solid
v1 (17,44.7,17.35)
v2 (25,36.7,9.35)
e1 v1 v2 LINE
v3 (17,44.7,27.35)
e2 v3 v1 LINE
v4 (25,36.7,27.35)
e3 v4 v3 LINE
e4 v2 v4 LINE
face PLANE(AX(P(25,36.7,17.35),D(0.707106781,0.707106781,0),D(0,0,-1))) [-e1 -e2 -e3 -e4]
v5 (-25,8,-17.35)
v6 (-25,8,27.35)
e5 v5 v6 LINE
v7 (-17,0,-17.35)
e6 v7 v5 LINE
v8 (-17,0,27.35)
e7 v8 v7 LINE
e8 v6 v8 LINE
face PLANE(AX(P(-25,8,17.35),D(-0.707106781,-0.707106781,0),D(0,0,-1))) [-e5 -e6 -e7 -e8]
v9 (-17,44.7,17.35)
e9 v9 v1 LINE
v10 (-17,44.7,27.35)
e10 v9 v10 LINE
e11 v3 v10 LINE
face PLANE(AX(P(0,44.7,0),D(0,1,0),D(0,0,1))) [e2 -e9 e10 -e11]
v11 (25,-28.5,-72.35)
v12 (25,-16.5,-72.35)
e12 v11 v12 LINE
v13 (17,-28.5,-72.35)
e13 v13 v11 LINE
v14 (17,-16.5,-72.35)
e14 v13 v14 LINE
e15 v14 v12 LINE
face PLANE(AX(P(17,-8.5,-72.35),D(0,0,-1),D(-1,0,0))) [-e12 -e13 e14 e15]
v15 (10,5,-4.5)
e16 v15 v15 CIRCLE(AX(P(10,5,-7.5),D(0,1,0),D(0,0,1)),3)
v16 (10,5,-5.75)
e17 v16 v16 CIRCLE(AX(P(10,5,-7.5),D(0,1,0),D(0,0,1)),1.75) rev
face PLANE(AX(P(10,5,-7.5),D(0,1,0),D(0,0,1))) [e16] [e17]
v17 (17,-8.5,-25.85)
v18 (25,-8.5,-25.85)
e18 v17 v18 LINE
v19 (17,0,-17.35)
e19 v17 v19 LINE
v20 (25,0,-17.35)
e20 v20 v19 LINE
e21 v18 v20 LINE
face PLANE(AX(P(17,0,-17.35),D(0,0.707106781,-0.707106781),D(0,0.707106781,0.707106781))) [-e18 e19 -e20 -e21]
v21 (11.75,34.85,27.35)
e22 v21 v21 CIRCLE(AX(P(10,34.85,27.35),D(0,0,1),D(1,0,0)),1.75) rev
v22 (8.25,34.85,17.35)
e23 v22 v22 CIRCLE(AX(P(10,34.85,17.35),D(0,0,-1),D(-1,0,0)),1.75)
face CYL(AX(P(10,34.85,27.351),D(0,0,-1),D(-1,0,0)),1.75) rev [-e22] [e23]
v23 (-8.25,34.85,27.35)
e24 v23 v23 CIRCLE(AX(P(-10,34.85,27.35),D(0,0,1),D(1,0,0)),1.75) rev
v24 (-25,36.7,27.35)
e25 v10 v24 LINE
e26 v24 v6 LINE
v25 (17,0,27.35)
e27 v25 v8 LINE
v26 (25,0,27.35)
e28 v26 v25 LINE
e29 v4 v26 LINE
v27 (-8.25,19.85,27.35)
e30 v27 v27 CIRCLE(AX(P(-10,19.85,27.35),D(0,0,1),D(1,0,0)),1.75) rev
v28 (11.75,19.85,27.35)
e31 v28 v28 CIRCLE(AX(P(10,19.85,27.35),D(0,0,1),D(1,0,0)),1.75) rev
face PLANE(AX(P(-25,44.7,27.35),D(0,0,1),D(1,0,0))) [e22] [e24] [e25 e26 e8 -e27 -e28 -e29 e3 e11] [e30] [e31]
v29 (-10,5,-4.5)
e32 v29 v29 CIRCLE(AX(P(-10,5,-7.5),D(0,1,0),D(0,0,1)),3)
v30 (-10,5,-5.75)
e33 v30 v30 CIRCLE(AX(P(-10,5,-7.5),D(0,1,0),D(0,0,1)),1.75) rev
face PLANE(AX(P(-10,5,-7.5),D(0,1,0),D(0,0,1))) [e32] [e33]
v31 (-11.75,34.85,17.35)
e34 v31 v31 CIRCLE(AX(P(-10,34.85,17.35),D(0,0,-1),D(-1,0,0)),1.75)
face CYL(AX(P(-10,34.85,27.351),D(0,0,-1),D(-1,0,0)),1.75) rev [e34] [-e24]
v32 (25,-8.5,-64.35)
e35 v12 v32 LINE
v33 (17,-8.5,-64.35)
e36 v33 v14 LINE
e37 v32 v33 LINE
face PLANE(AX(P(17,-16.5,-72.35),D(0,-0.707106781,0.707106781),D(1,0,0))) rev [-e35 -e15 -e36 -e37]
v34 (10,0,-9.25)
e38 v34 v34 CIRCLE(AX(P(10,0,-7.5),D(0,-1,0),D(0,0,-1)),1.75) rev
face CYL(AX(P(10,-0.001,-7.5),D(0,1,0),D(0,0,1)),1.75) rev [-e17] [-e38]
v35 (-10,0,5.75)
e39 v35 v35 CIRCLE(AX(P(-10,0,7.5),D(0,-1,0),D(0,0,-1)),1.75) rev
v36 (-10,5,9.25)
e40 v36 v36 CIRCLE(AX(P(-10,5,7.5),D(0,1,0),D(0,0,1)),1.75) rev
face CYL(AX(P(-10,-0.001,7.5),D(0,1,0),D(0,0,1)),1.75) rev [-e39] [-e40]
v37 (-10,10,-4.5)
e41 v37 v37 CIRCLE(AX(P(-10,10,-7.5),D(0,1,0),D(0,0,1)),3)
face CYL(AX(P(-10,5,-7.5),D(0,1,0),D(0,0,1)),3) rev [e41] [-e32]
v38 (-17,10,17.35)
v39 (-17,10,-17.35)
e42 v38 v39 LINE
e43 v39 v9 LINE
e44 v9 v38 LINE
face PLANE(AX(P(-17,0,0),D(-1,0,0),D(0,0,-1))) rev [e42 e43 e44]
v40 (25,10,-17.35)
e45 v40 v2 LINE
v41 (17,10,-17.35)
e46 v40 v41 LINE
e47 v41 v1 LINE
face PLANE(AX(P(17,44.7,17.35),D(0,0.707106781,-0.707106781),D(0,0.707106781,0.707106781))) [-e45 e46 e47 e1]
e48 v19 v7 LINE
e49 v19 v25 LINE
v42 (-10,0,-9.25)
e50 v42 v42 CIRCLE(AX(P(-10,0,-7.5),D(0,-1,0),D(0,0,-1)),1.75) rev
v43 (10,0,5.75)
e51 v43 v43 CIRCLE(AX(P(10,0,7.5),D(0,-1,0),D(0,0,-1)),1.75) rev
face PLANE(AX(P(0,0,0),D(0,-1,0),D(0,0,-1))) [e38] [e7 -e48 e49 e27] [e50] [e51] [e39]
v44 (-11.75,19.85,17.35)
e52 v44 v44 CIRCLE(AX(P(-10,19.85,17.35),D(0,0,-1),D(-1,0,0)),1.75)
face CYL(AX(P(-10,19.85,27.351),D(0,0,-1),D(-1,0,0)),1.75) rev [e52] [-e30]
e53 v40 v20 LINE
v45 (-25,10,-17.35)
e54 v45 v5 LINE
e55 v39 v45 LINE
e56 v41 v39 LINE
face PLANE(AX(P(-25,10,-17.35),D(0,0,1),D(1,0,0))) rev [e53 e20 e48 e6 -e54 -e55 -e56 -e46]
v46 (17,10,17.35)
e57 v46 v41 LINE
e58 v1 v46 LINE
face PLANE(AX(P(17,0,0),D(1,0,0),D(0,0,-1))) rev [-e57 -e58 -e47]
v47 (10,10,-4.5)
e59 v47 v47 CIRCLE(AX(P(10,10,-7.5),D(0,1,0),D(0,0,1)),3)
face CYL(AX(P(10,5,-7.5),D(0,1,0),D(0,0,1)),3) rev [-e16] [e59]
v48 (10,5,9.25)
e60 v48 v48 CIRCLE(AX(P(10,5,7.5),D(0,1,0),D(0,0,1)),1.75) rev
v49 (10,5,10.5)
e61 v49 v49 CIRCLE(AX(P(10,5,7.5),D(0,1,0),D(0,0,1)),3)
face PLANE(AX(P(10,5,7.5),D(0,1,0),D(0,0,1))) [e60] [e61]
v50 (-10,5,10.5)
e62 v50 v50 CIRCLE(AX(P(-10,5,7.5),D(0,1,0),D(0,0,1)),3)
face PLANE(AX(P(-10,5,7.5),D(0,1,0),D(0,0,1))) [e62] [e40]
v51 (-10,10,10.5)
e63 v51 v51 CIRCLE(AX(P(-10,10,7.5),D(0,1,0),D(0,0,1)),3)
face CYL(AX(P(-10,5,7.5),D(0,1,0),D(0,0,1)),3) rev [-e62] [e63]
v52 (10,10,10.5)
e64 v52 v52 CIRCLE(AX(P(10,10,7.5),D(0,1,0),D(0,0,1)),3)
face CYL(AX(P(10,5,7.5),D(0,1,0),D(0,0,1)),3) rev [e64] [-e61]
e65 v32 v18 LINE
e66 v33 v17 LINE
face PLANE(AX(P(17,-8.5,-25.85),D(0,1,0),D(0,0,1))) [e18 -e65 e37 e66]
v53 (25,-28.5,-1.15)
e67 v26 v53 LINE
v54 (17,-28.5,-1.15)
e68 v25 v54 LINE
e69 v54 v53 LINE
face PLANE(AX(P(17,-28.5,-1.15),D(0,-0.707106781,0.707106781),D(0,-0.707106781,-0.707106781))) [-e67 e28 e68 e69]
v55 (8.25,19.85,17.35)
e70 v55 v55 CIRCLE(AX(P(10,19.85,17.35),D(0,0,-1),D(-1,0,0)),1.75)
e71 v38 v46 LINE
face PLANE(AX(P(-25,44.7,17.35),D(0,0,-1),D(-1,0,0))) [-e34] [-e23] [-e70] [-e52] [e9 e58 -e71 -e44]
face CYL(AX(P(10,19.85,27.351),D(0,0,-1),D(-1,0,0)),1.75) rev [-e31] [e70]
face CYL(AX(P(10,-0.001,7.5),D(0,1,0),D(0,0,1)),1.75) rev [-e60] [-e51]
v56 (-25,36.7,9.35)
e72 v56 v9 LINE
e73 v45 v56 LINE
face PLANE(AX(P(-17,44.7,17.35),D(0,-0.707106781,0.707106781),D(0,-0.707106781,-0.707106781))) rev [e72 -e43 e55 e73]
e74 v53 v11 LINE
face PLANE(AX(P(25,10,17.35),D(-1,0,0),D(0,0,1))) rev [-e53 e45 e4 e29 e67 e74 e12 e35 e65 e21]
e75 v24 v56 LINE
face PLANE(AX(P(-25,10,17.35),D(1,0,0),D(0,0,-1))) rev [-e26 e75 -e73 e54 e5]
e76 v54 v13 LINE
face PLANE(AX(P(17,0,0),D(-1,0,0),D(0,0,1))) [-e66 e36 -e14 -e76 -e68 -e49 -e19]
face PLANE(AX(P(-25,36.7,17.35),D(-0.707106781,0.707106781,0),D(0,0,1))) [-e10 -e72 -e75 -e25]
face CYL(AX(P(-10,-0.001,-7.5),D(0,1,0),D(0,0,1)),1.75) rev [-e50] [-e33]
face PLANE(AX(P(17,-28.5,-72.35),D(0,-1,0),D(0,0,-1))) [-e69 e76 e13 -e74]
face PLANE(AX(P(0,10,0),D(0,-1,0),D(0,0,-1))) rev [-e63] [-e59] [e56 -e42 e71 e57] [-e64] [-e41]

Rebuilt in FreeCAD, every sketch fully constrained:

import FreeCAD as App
import Part
import Sketcher
Q = App.Units.Quantity


def edges_at(feature, points):
    """Names of the edges that pass closest to the given points."""
    edges = feature.Shape.Edges
    near = lambda p: min(range(len(edges)), key=lambda i: edges[i].distToShape(Part.Vertex(*p))[0])
    return sorted({f"Edge{near(p) + 1}" for p in points})


def add_polygon(sketch, points):
    """Adds a closed chain of lines whose ends are joined by coincident constraints."""
    first, n = sketch.GeometryCount, len(points)
    for a, b in zip(points, points[1:] + points[:1]):
        sketch.addGeometry(Part.LineSegment(App.Vector(*a, 0), App.Vector(*b, 0)), False)
    for i in range(n):
        sketch.addConstraint(Sketcher.Constraint("Coincident", first + i, 2, first + (i + 1) % n, 1))

doc = App.newDocument("Part")
params = doc.addObject("Spreadsheet::Sheet", "Params")
for row, (alias, value) in enumerate([
    ("sketch1_width", "50 mm"),
    ("sketch1_height", "34.7 mm"),
    ("pad1_length", "10 mm"),
    ("sketch2_diameter", "3.5 mm"),
    ("sketch3_diameter", "3.5 mm"),
    ("sketch4_diameter", "3.5 mm"),
    ("sketch5_diameter", "3.5 mm"),
    ("sketch6_diameter", "6 mm"),
    ("pocket5_length", "5 mm"),
    ("sketch7_width", "50 mm"),
    ("sketch7_height", "10 mm"),
    ("pad2_length", "44.7 mm"),
    ("sketch8_width", "20 mm"),
    ("sketch8_height", "44.7 mm"),
    ("sketch8_height2", "71.2 mm"),
    ("pad3_length", "8 mm"),
    ("sketch9_width", "34.7 mm"),
    ("pad4_length", "8 mm"),
    ("chamfer_size", "8 mm"),
    ("sketch10_diameter", "3.5 mm"),
    ("sketch11_diameter", "3.5 mm"),
    ("sketch12_diameter", "3.5 mm"),
    ("sketch13_diameter", "3.5 mm"),
    ("chamfer2_size", "8 mm"),
], start=1):
    params.set(f"A{row}", alias)
    params.set(f"B{row}", "=" + value)
    params.setAlias(f"B{row}", alias)

body = doc.addObject("PartDesign::Body", "Body")

# Sketch on XZ plane
sketch1 = doc.addObject("Sketcher::SketchObject", "Sketch")
body.addObject(sketch1)
sketch1.AttachmentSupport = (doc.XZ_Plane, [""])
sketch1.MapMode = "FlatFace"
add_polygon(sketch1, [(-25, -17), (-25, 17), (25, 17), (25, -17)])  # lines 0-3
sketch1.addConstraint([
    Sketcher.Constraint("Vertical", 0),
    Sketcher.Constraint("Horizontal", 1),
    Sketcher.Constraint("Vertical", 2),
    Sketcher.Constraint("Horizontal", 3),
    Sketcher.Constraint("Symmetric", 0, 2, 2, 2, -1, 1),
    Sketcher.Constraint("DistanceX", 1, 1, 1, 2, 50.0),
    Sketcher.Constraint("DistanceY", 0, 1, 0, 2, 34.7),
])
sketch1.setExpression("Constraints[9]", "Params.sketch1_width")
sketch1.setExpression("Constraints[10]", "Params.sketch1_height")
pad1 = doc.addObject("PartDesign::Pad", "Pad")
body.addObject(pad1)
pad1.Profile = sketch1
pad1.setExpression("Length", "Params.pad1_length")
pad1.Reversed = True

# Sketch on XZ plane
sketch2 = doc.addObject("Sketcher::SketchObject", "Sketch001")
body.addObject(sketch2)
sketch2.AttachmentSupport = (doc.XZ_Plane, [""])
sketch2.MapMode = "FlatFace"
sketch2.AttachmentOffset = App.Placement(App.Vector(0, 0, -10), App.Rotation())
sketch2.addGeometry(Part.Circle(App.Vector(-10, -7.5, 0), App.Vector(0, 0, 1), 1.8), False)
sketch2.addConstraint([
    Sketcher.Constraint("Diameter", 0, 3.5),
    Sketcher.Constraint("DistanceX", 0, 3, -1, 1, 10.0),
    Sketcher.Constraint("DistanceY", 0, 3, -1, 1, 7.5),
])
sketch2.setExpression("Constraints[0]", "Params.sketch2_diameter")
pocket1 = doc.addObject("PartDesign::Pocket", "Pocket")
body.addObject(pocket1)
pocket1.Profile = sketch2
pocket1.Type = "UpToFirst"
pocket1.Reversed = True

# Sketch on XZ plane
sketch3 = doc.addObject("Sketcher::SketchObject", "Sketch002")
body.addObject(sketch3)
sketch3.AttachmentSupport = (doc.XZ_Plane, [""])
sketch3.MapMode = "FlatFace"
sketch3.AttachmentOffset = App.Placement(App.Vector(0, 0, -10), App.Rotation())
sketch3.addGeometry(Part.Circle(App.Vector(10, -7.5, 0), App.Vector(0, 0, 1), 1.8), False)
sketch3.addConstraint([
    Sketcher.Constraint("Diameter", 0, 3.5),
    Sketcher.Constraint("DistanceX", -1, 1, 0, 3, 10.0),
    Sketcher.Constraint("DistanceY", 0, 3, -1, 1, 7.5),
])
sketch3.setExpression("Constraints[0]", "Params.sketch3_diameter")
pocket2 = doc.addObject("PartDesign::Pocket", "Pocket001")
body.addObject(pocket2)
pocket2.Profile = sketch3
pocket2.Type = "UpToFirst"
pocket2.Reversed = True

# Sketch on XZ plane
sketch4 = doc.addObject("Sketcher::SketchObject", "Sketch003")
body.addObject(sketch4)
sketch4.AttachmentSupport = (doc.XZ_Plane, [""])
sketch4.MapMode = "FlatFace"
sketch4.AttachmentOffset = App.Placement(App.Vector(0, 0, -10), App.Rotation())
sketch4.addGeometry(Part.Circle(App.Vector(10, 7.5, 0), App.Vector(0, 0, 1), 1.8), False)
sketch4.addConstraint([
    Sketcher.Constraint("Diameter", 0, 3.5),
    Sketcher.Constraint("DistanceX", -1, 1, 0, 3, 10.0),
    Sketcher.Constraint("DistanceY", -1, 1, 0, 3, 7.5),
])
sketch4.setExpression("Constraints[0]", "Params.sketch4_diameter")
pocket3 = doc.addObject("PartDesign::Pocket", "Pocket002")
body.addObject(pocket3)
pocket3.Profile = sketch4
pocket3.Type = "UpToFirst"
pocket3.Reversed = True

# Sketch on XZ plane
sketch5 = doc.addObject("Sketcher::SketchObject", "Sketch004")
body.addObject(sketch5)
sketch5.AttachmentSupport = (doc.XZ_Plane, [""])
sketch5.MapMode = "FlatFace"
sketch5.AttachmentOffset = App.Placement(App.Vector(0, 0, -10), App.Rotation())
sketch5.addGeometry(Part.Circle(App.Vector(-10, 7.5, 0), App.Vector(0, 0, 1), 1.8), False)
sketch5.addConstraint([
    Sketcher.Constraint("Diameter", 0, 3.5),
    Sketcher.Constraint("DistanceX", 0, 3, -1, 1, 10.0),
    Sketcher.Constraint("DistanceY", -1, 1, 0, 3, 7.5),
])
sketch5.setExpression("Constraints[0]", "Params.sketch5_diameter")
pocket4 = doc.addObject("PartDesign::Pocket", "Pocket003")
body.addObject(pocket4)
pocket4.Profile = sketch5
pocket4.Type = "UpToFirst"
pocket4.Reversed = True

# Sketch on XZ plane
sketch6 = doc.addObject("Sketcher::SketchObject", "Sketch005")
body.addObject(sketch6)
sketch6.AttachmentSupport = (doc.XZ_Plane, [""])
sketch6.MapMode = "FlatFace"
sketch6.AttachmentOffset = App.Placement(App.Vector(0, 0, -10), App.Rotation())
sketch6.addGeometry([
    Part.Circle(App.Vector(-10, -7.5, 0), App.Vector(0, 0, 1), 3),
    Part.Circle(App.Vector(10, -7.5, 0), App.Vector(0, 0, 1), 3),
    Part.Circle(App.Vector(10, 7.5, 0), App.Vector(0, 0, 1), 3),
    Part.Circle(App.Vector(-10, 7.5, 0), App.Vector(0, 0, 1), 3),
], False)
sketch6.addConstraint([
    Sketcher.Constraint("Equal", 0, 1),
    Sketcher.Constraint("Equal", 1, 2),
    Sketcher.Constraint("Equal", 2, 3),
    Sketcher.Constraint("Symmetric", 0, 3, 2, 3, -1, 1),
    Sketcher.Constraint("Symmetric", 1, 3, 3, 3, -1, 1),
    Sketcher.Constraint("Symmetric", 0, 3, 1, 3, -2),
    Sketcher.Constraint("Diameter", 0, 6.0),
    Sketcher.Constraint("DistanceX", 0, 3, -1, 1, 10.0),
    Sketcher.Constraint("DistanceY", 1, 3, 2, 3, 15.0),
])
sketch6.setExpression("Constraints[6]", "Params.sketch6_diameter")
pocket5 = doc.addObject("PartDesign::Pocket", "Pocket004")
body.addObject(pocket5)
pocket5.Profile = sketch6
pocket5.setExpression("Length", "Params.pocket5_length")
pocket5.Reversed = True

# Sketch on XZ plane
sketch7 = doc.addObject("Sketcher::SketchObject", "Sketch006")
body.addObject(sketch7)
sketch7.AttachmentSupport = (doc.XZ_Plane, [""])
sketch7.MapMode = "FlatFace"
add_polygon(sketch7, [(-25, 27), (-25, 17), (25, 17), (25, 27)])  # lines 0-3
sketch7.addConstraint([
    Sketcher.Constraint("Vertical", 0),
    Sketcher.Constraint("Horizontal", 1),
    Sketcher.Constraint("Vertical", 2),
    Sketcher.Constraint("Horizontal", 3),
    Sketcher.Constraint("DistanceX", 1, 1, 1, 2, 50.0),
    Sketcher.Constraint("DistanceY", 0, 2, 0, 1, 10.0),
    Sketcher.Constraint("DistanceX", 0, 2, -1, 1, 25.0),
    Sketcher.Constraint("DistanceY", -1, 1, 0, 2, 17.35),
])
sketch7.setExpression("Constraints[8]", "Params.sketch7_width")
sketch7.setExpression("Constraints[9]", "Params.sketch7_height")
pad2 = doc.addObject("PartDesign::Pad", "Pad001")
body.addObject(pad2)
pad2.Profile = sketch7
pad2.setExpression("Length", "Params.pad2_length")
pad2.Reversed = True

# Sketch on YZ plane
sketch8 = doc.addObject("Sketcher::SketchObject", "Sketch007")
body.addObject(sketch8)
sketch8.AttachmentSupport = (doc.YZ_Plane, [""])
sketch8.MapMode = "FlatFace"
sketch8.AttachmentOffset = App.Placement(App.Vector(0, 0, 25), App.Rotation())
add_polygon(sketch8, [(0, -17), (0, 27), (-28, -1), (-28, -72), (-8, -72), (-8, -26)])  # lines 0-5
sketch8.addConstraint([
    Sketcher.Constraint("Vertical", 0),
    Sketcher.Constraint("Vertical", 2),
    Sketcher.Constraint("Horizontal", 3),
    Sketcher.Constraint("Vertical", 4),
    Sketcher.Constraint("PointOnObject", 0, 2, -2),
    Sketcher.Constraint("Parallel", 1, 5),
    Sketcher.Constraint("DistanceX", 3, 1, 3, 2, 20.0),
    Sketcher.Constraint("Angle", 1, Q("-135 deg")),
    Sketcher.Constraint("DistanceY", 0, 1, 0, 2, 44.7),
    Sketcher.Constraint("DistanceY", 2, 2, 2, 1, 71.2),
    Sketcher.Constraint("DistanceY", 3, 2, 5, 2, 55.0),
    Sketcher.Constraint("DistanceY", -1, 1, 0, 2, 27.35),
])
sketch8.setExpression("Constraints[12]", "Params.sketch8_width")
sketch8.setExpression("Constraints[14]", "Params.sketch8_height")
sketch8.setExpression("Constraints[15]", "Params.sketch8_height2")
pad3 = doc.addObject("PartDesign::Pad", "Pad002")
body.addObject(pad3)
pad3.Profile = sketch8
pad3.setExpression("Length", "Params.pad3_length")
pad3.Reversed = True

# Sketch on YZ plane
sketch9 = doc.addObject("Sketcher::SketchObject", "Sketch008")
body.addObject(sketch9)
sketch9.AttachmentSupport = (doc.YZ_Plane, [""])
sketch9.MapMode = "FlatFace"
sketch9.AttachmentOffset = App.Placement(App.Vector(0, 0, 25), App.Rotation())
add_polygon(sketch9, [(10, -17), (45, 17), (10, 17)])  # lines 0-2
sketch9.addConstraint([
    Sketcher.Constraint("Horizontal", 1),
    Sketcher.Constraint("Vertical", 2),
    Sketcher.Constraint("Equal", 1, 2),
    Sketcher.Constraint("DistanceX", 1, 2, 1, 1, 34.7),
    Sketcher.Constraint("DistanceX", -1, 1, 1, 2, 10.0),
    Sketcher.Constraint("DistanceY", -1, 1, 0, 2, 17.35),
])
sketch9.setExpression("Constraints[6]", "Params.sketch9_width")
pad4 = doc.addObject("PartDesign::Pad", "Pad003")
body.addObject(pad4)
pad4.Profile = sketch9
pad4.setExpression("Length", "Params.pad4_length")
pad4.Reversed = True
doc.recompute()

chamfer = doc.addObject("PartDesign::Chamfer", "Chamfer")
body.addObject(chamfer)
chamfer.Base = (pad4, edges_at(pad4, [(21, -8.5, -72.35)]))
chamfer.setExpression("Size", "Params.chamfer_size")
doc.recompute()

mirrored = doc.addObject("PartDesign::Mirrored", "Mirrored")
body.addObject(mirrored)
mirrored.Originals = [pad4]
mirrored.MirrorPlane = (doc.YZ_Plane, [""])
body.Tip = mirrored

# Sketch on XY plane
sketch10 = doc.addObject("Sketcher::SketchObject", "Sketch009")
body.addObject(sketch10)
sketch10.AttachmentSupport = (doc.XY_Plane, [""])
sketch10.MapMode = "FlatFace"
sketch10.AttachmentOffset = App.Placement(App.Vector(0, 0, 17.35), App.Rotation())
sketch10.addGeometry(Part.Circle(App.Vector(10, 34.9, 0), App.Vector(0, 0, 1), 1.8), False)
sketch10.addConstraint([
    Sketcher.Constraint("Diameter", 0, 3.5),
    Sketcher.Constraint("DistanceX", -1, 1, 0, 3, 10.0),
    Sketcher.Constraint("DistanceY", -1, 1, 0, 3, 34.85),
])
sketch10.setExpression("Constraints[0]", "Params.sketch10_diameter")
pocket6 = doc.addObject("PartDesign::Pocket", "Pocket005")
body.addObject(pocket6)
pocket6.Profile = sketch10
pocket6.Type = "UpToFirst"
pocket6.Reversed = True

# Sketch on XY plane
sketch11 = doc.addObject("Sketcher::SketchObject", "Sketch010")
body.addObject(sketch11)
sketch11.AttachmentSupport = (doc.XY_Plane, [""])
sketch11.MapMode = "FlatFace"
sketch11.AttachmentOffset = App.Placement(App.Vector(0, 0, 17.35), App.Rotation())
sketch11.addGeometry(Part.Circle(App.Vector(-10, 34.9, 0), App.Vector(0, 0, 1), 1.8), False)
sketch11.addConstraint([
    Sketcher.Constraint("Diameter", 0, 3.5),
    Sketcher.Constraint("DistanceX", 0, 3, -1, 1, 10.0),
    Sketcher.Constraint("DistanceY", -1, 1, 0, 3, 34.85),
])
sketch11.setExpression("Constraints[0]", "Params.sketch11_diameter")
pocket7 = doc.addObject("PartDesign::Pocket", "Pocket006")
body.addObject(pocket7)
pocket7.Profile = sketch11
pocket7.Type = "UpToFirst"
pocket7.Reversed = True

# Sketch on XY plane
sketch12 = doc.addObject("Sketcher::SketchObject", "Sketch011")
body.addObject(sketch12)
sketch12.AttachmentSupport = (doc.XY_Plane, [""])
sketch12.MapMode = "FlatFace"
sketch12.AttachmentOffset = App.Placement(App.Vector(0, 0, 17.35), App.Rotation())
sketch12.addGeometry(Part.Circle(App.Vector(-10, 19.9, 0), App.Vector(0, 0, 1), 1.8), False)
sketch12.addConstraint([
    Sketcher.Constraint("Diameter", 0, 3.5),
    Sketcher.Constraint("DistanceX", 0, 3, -1, 1, 10.0),
    Sketcher.Constraint("DistanceY", -1, 1, 0, 3, 19.85),
])
sketch12.setExpression("Constraints[0]", "Params.sketch12_diameter")
pocket8 = doc.addObject("PartDesign::Pocket", "Pocket007")
body.addObject(pocket8)
pocket8.Profile = sketch12
pocket8.Type = "UpToFirst"
pocket8.Reversed = True

# Sketch on XY plane
sketch13 = doc.addObject("Sketcher::SketchObject", "Sketch012")
body.addObject(sketch13)
sketch13.AttachmentSupport = (doc.XY_Plane, [""])
sketch13.MapMode = "FlatFace"
sketch13.AttachmentOffset = App.Placement(App.Vector(0, 0, 17.35), App.Rotation())
sketch13.addGeometry(Part.Circle(App.Vector(10, 19.9, 0), App.Vector(0, 0, 1), 1.8), False)
sketch13.addConstraint([
    Sketcher.Constraint("Diameter", 0, 3.5),
    Sketcher.Constraint("DistanceX", -1, 1, 0, 3, 10.0),
    Sketcher.Constraint("DistanceY", -1, 1, 0, 3, 19.85),
])
sketch13.setExpression("Constraints[0]", "Params.sketch13_diameter")
pocket9 = doc.addObject("PartDesign::Pocket", "Pocket008")
body.addObject(pocket9)
pocket9.Profile = sketch13
pocket9.Type = "UpToFirst"
pocket9.Reversed = True
doc.recompute()

chamfer2 = doc.addObject("PartDesign::Chamfer", "Chamfer001")
body.addObject(chamfer2)
chamfer2.Base = (pocket9, edges_at(pocket9, [(25, 44.7, 22.35), (-25, 44.7, 22.35), (-25, 0, 5)]))
chamfer2.setExpression("Size", "Params.chamfer2_size")

doc.recompute()
